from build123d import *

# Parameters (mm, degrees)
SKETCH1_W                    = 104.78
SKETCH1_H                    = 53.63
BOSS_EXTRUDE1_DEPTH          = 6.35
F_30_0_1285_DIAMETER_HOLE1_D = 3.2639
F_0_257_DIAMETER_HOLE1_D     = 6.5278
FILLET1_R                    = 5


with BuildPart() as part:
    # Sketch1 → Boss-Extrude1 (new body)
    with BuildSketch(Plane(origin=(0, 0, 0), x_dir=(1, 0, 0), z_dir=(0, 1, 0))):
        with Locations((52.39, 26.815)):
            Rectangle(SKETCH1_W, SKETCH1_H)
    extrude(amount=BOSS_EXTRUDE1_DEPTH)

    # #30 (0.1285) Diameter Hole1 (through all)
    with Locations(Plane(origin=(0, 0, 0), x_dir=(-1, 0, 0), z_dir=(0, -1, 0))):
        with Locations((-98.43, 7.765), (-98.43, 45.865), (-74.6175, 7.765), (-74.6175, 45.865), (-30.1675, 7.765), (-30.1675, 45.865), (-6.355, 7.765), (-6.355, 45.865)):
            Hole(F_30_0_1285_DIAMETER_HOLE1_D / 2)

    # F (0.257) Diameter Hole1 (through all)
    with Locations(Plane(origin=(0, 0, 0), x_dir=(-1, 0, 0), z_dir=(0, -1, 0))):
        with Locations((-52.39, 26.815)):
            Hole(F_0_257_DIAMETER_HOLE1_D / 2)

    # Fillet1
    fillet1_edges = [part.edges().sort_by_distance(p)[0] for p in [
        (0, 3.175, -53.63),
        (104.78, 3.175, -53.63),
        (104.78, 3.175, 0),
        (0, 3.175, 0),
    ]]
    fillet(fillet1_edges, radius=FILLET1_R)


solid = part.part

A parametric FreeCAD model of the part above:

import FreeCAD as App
import Part
import Sketcher
Q = App.Units.Quantity


def edges_at(feature, points):
    """Names of the edges that pass closest to the given points."""
    edges = feature.Shape.Edges
    near = lambda p: min(range(len(edges)), key=lambda i: edges[i].distToShape(Part.Vertex(*p))[0])
    return sorted({f"Edge{near(p) + 1}" for p in points})

doc = App.newDocument("Part")
body = doc.addObject("PartDesign::Body", "Body")

# Sketch on XZ plane
sketch1 = doc.addObject("Sketcher::SketchObject", "Sketch")
body.addObject(sketch1)
sketch1.AttachmentSupport = (doc.XZ_Plane, [""])
sketch1.MapMode = "FlatFace"
sketch1.addGeometry([
    Part.LineSegment(App.Vector(0, -54, 0), App.Vector(0, 0, 0)),
    Part.LineSegment(App.Vector(0, 0, 0), App.Vector(105, 0, 0)),
    Part.LineSegment(App.Vector(105, 0, 0), App.Vector(105, -54, 0)),
    Part.LineSegment(App.Vector(105, -54, 0), App.Vector(0, -54, 0)),
], False)
sketch1.addConstraint([
    Sketcher.Constraint("Coincident", 0, 2, 1, 1),
    Sketcher.Constraint("Coincident", 1, 2, 2, 1),
    Sketcher.Constraint("Coincident", 2, 2, 3, 1),
    Sketcher.Constraint("Coincident", 3, 2, 0, 1),
    Sketcher.Constraint("Vertical", 0),
    Sketcher.Constraint("Horizontal", 1),
    Sketcher.Constraint("Vertical", 2),
    Sketcher.Constraint("Horizontal", 3),
    Sketcher.Constraint("Coincident", 0, 2, -1, 1),
    Sketcher.Constraint("DistanceX", 1, 1, 1, 2, Q("104.78 mm")),
    Sketcher.Constraint("DistanceY", 0, 1, 0, 2, Q("53.63 mm")),
])
pad1 = doc.addObject("PartDesign::Pad", "Pad")
body.addObject(pad1)
pad1.Profile = sketch1
pad1.Length = Q("0.25 in")
pad1.Reversed = True

# Sketch on XZ plane
sketch2 = doc.addObject("Sketcher::SketchObject", "Sketch001")
body.addObject(sketch2)
sketch2.AttachmentSupport = (doc.XZ_Plane, [""])
sketch2.MapMode = "FlatFace"
sketch2.addGeometry([
    Part.Circle(App.Vector(98.4, -7.8, 0), App.Vector(0, 0, 1), 1.6),  # 0
    Part.Circle(App.Vector(98.4, -45.9, 0), App.Vector(0, 0, 1), 1.6),  # 1
    Part.Circle(App.Vector(74.6, -7.8, 0), App.Vector(0, 0, 1), 1.6),  # 2
    Part.Circle(App.Vector(74.6, -45.9, 0), App.Vector(0, 0, 1), 1.6),  # 3
    Part.Circle(App.Vector(30.2, -7.8, 0), App.Vector(0, 0, 1), 1.6),  # 4
    Part.Circle(App.Vector(30.2, -45.9, 0), App.Vector(0, 0, 1), 1.6),  # 5
    Part.Circle(App.Vector(6.4, -7.8, 0), App.Vector(0, 0, 1), 1.6),  # 6
    Part.Circle(App.Vector(6.4, -45.9, 0), App.Vector(0, 0, 1), 1.6),  # 7
], False)
sketch2.addConstraint([
    Sketcher.Constraint("Equal", 0, 1),
    Sketcher.Constraint("Equal", 1, 2),
    Sketcher.Constraint("Equal", 2, 3),
    Sketcher.Constraint("Equal", 3, 4),
    Sketcher.Constraint("Equal", 4, 5),
    Sketcher.Constraint("Equal", 5, 6),
    Sketcher.Constraint("Equal", 6, 7),
    Sketcher.Constraint("Horizontal", 0, 3, 2, 3),
    Sketcher.Constraint("Horizontal", 1, 3, 3, 3),
    Sketcher.Constraint("Horizontal", 2, 3, 4, 3),
    Sketcher.Constraint("Horizontal", 3, 3, 5, 3),
    Sketcher.Constraint("Horizontal", 4, 3, 6, 3),
    Sketcher.Constraint("Horizontal", 5, 3, 7, 3),
    Sketcher.Constraint("Vertical", 0, 3, 1, 3),
    Sketcher.Constraint("Vertical", 2, 3, 3, 3),
    Sketcher.Constraint("Vertical", 4, 3, 5, 3),
    Sketcher.Constraint("Vertical", 6, 3, 7, 3),
    Sketcher.Constraint("Diameter", 0, Q("0.1285 in")),
    Sketcher.Constraint("DistanceY", 1, 3, 0, 3, Q("1.5 in")),
    Sketcher.Constraint("DistanceX", 4, 3, 2, 3, Q("1.75 in")),
    Sketcher.Constraint("DistanceX", 2, 3, 0, 3, Q("0.9375 in")),
    Sketcher.Constraint("DistanceX", 6, 3, 4, 3, Q("0.9375 in")),
    Sketcher.Constraint("DistanceX", -1, 1, 0, 3, Q("98.43 mm")),
    Sketcher.Constraint("DistanceY", 0, 3, -1, 1, Q("7.765 mm")),
])
doc.recompute()
hole = doc.addObject("PartDesign::Hole", "Hole")
body.addObject(hole)
hole.Profile = sketch2
hole.ThreadType = "None"
hole.Diameter = Q("0.1285 in")
hole.DepthType = "ThroughAll"

# Sketch on XZ plane
sketch3 = doc.addObject("Sketcher::SketchObject", "Sketch002")
body.addObject(sketch3)
sketch3.AttachmentSupport = (doc.XZ_Plane, [""])
sketch3.MapMode = "FlatFace"
sketch3.addGeometry(Part.Circle(App.Vector(52.4, -26.8, 0), App.Vector(0, 0, 1), 3.3), False)
sketch3.addConstraint([
    Sketcher.Constraint("Diameter", 0, Q("0.257 in")),
    Sketcher.Constraint("DistanceX", -1, 1, 0, 3, Q("52.39 mm")),
    Sketcher.Constraint("DistanceY", 0, 3, -1, 1, Q("26.815 mm")),
])
doc.recompute()
hole2 = doc.addObject("PartDesign::Hole", "Hole001")
body.addObject(hole2)
hole2.Profile = sketch3
hole2.ThreadType = "None"
hole2.Diameter = Q("0.257 in")
hole2.DepthType = "ThroughAll"
doc.recompute()

fillet = doc.addObject("PartDesign::Fillet", "Fillet")
body.addObject(fillet)
fillet.Base = (hole2, edges_at(hole2, [
    (0, 3.175, -53.63),
    (104.78, 3.175, -53.63),
    (104.78, 3.175, 0),
    (0, 3.175, 0),
]))
fillet.Radius = 5

doc.recompute()
